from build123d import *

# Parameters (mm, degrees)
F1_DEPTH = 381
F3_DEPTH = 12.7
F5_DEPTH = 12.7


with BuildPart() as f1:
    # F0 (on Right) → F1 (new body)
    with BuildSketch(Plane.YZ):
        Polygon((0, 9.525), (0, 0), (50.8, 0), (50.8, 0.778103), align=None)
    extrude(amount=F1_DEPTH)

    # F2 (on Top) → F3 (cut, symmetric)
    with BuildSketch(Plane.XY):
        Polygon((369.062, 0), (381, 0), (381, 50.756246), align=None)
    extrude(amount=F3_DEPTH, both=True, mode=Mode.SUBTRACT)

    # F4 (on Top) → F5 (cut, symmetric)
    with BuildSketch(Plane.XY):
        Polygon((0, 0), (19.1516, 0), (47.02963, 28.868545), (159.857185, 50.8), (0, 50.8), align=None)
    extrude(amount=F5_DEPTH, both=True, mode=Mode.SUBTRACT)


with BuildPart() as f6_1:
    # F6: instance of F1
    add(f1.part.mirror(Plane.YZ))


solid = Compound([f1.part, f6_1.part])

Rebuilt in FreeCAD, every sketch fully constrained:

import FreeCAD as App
import Part
import Sketcher
Q = App.Units.Quantity

doc = App.newDocument("Part")
body = doc.addObject("PartDesign::Body", "Body")

sketch1 = doc.addObject("Sketcher::SketchObject", "Sketch")
body.addObject(sketch1)
sketch1.AttachmentSupport = (doc.YZ_Plane, [""])
sketch1.MapMode = "FlatFace"
sketch1.addGeometry(Part.LineSegment(App.Vector(0, 9.5, 0), App.Vector(0, 0, 0)), False)
sketch1.addGeometry(Part.LineSegment(App.Vector(0, 0, 0), App.Vector(50.8, 0, 0)), False)
sketch1.addGeometry(Part.LineSegment(App.Vector(50.8, 0, 0), App.Vector(50.8, 0.8, 0)), False)
sketch1.addGeometry(Part.LineSegment(App.Vector(50.8, 0.8, 0), App.Vector(0, 9.5, 0)), False)
sketch1.addConstraint(Sketcher.Constraint("Coincident", 0, 2, 1, 1))
sketch1.addConstraint(Sketcher.Constraint("Coincident", 1, 2, 2, 1))
sketch1.addConstraint(Sketcher.Constraint("Coincident", 2, 2, 3, 1))
sketch1.addConstraint(Sketcher.Constraint("Coincident", 3, 2, 0, 1))
sketch1.addConstraint(Sketcher.Constraint("Vertical", 0))
sketch1.addConstraint(Sketcher.Constraint("Horizontal", 1))
sketch1.addConstraint(Sketcher.Constraint("Vertical", 2))
sketch1.addConstraint(Sketcher.Constraint("Coincident", 0, 2, -1, 1))
sketch1.addConstraint(Sketcher.Constraint("DistanceX", 1, 1, 1, 2, Q("2 in")))
sketch1.addConstraint(Sketcher.Constraint("DistanceY", 0, 2, 0, 1, Q("0.375 in")))
sketch1.addConstraint(Sketcher.Constraint("DistanceY", 2, 1, 2, 2, Q("0.778103 mm")))
pad1 = doc.addObject("PartDesign::Pad", "Pad")
body.addObject(pad1)
pad1.Profile = sketch1
pad1.Length = Q("15 in")

sketch2 = doc.addObject("Sketcher::SketchObject", "Sketch001")
body.addObject(sketch2)
sketch2.AttachmentSupport = (doc.XY_Plane, [""])
sketch2.MapMode = "FlatFace"
sketch2.addGeometry(Part.LineSegment(App.Vector(369, 0, 0), App.Vector(381, 0, 0)), False)
sketch2.addGeometry(Part.LineSegment(App.Vector(381, 0, 0), App.Vector(381, 51, 0)), False)
sketch2.addGeometry(Part.LineSegment(App.Vector(381, 51, 0), App.Vector(369, 0, 0)), False)
sketch2.addConstraint(Sketcher.Constraint("Coincident", 0, 2, 1, 1))
sketch2.addConstraint(Sketcher.Constraint("Coincident", 1, 2, 2, 1))
sketch2.addConstraint(Sketcher.Constraint("Coincident", 2, 2, 0, 1))
sketch2.addConstraint(Sketcher.Constraint("Horizontal", 0))
sketch2.addConstraint(Sketcher.Constraint("Vertical", 1))
sketch2.addConstraint(Sketcher.Constraint("PointOnObject", 0, 2, -1))
sketch2.addConstraint(Sketcher.Constraint("DistanceX", -1, 1, 0, 2, Q("15 in")))
sketch2.addConstraint(Sketcher.Constraint("DistanceX", 0, 1, 0, 2, Q("0.47 in")))
sketch2.addConstraint(Sketcher.Constraint("DistanceY", 1, 1, 1, 2, Q("50.756246 mm")))
pocket1 = doc.addObject("PartDesign::Pocket", "Pocket")
body.addObject(pocket1)
pocket1.Profile = sketch2
pocket1.Length = Q("1 in")
pocket1.Midplane = True

sketch3 = doc.addObject("Sketcher::SketchObject", "Sketch002")
body.addObject(sketch3)
sketch3.AttachmentSupport = (doc.XY_Plane, [""])
sketch3.MapMode = "FlatFace"
sketch3.addGeometry(Part.LineSegment(App.Vector(0, 0, 0), App.Vector(19, 0, 0)), False)
sketch3.addGeometry(Part.LineSegment(App.Vector(19, 0, 0), App.Vector(47, 29, 0)), False)
sketch3.addGeometry(Part.LineSegment(App.Vector(47, 29, 0), App.Vector(160, 51, 0)), False)
sketch3.addGeometry(Part.LineSegment(App.Vector(160, 51, 0), App.Vector(0, 51, 0)), False)
sketch3.addGeometry(Part.LineSegment(App.Vector(0, 51, 0), App.Vector(0, 0, 0)), False)
sketch3.addConstraint(Sketcher.Constraint("Coincident", 0, 2, 1, 1))
sketch3.addConstraint(Sketcher.Constraint("Coincident", 1, 2, 2, 1))
sketch3.addConstraint(Sketcher.Constraint("Coincident", 2, 2, 3, 1))
sketch3.addConstraint(Sketcher.Constraint("Coincident", 3, 2, 4, 1))
sketch3.addConstraint(Sketcher.Constraint("Coincident", 4, 2, 0, 1))
sketch3.addConstraint(Sketcher.Constraint("Horizontal", 0))
sketch3.addConstraint(Sketcher.Constraint("Horizontal", 3))
sketch3.addConstraint(Sketcher.Constraint("Vertical", 4))
sketch3.addConstraint(Sketcher.Constraint("Coincident", 4, 2, -1, 1))
sketch3.addConstraint(Sketcher.Constraint("DistanceY", 4, 2, 4, 1, Q("2 in")))
sketch3.addConstraint(Sketcher.Constraint("Angle", 1, Q("46 deg")))
sketch3.addConstraint(Sketcher.Constraint("Angle", 2, Q("11 deg")))
sketch3.addConstraint(Sketcher.Constraint("Distance", 1, Q("1.58 in")))
sketch3.addConstraint(Sketcher.Constraint("DistanceX", 0, 1, 0, 2, Q("0.754 in")))
pocket2 = doc.addObject("PartDesign::Pocket", "Pocket001")
body.addObject(pocket2)
pocket2.Profile = sketch3
pocket2.Length = Q("1 in")
pocket2.Midplane = True
body2 = doc.addObject("PartDesign::Body", "Body001")
doc.recompute()

mirroring = doc.addObject("Part::Mirroring", "Mirroring")
mirroring.Source = body
mirroring.Base = App.Vector(0, 0, 0)
mirroring.Normal = App.Vector(1, 0, 0)
body2.BaseFeature = mirroring
doc.recompute()
mirroring.Visibility = False

doc.recompute()
